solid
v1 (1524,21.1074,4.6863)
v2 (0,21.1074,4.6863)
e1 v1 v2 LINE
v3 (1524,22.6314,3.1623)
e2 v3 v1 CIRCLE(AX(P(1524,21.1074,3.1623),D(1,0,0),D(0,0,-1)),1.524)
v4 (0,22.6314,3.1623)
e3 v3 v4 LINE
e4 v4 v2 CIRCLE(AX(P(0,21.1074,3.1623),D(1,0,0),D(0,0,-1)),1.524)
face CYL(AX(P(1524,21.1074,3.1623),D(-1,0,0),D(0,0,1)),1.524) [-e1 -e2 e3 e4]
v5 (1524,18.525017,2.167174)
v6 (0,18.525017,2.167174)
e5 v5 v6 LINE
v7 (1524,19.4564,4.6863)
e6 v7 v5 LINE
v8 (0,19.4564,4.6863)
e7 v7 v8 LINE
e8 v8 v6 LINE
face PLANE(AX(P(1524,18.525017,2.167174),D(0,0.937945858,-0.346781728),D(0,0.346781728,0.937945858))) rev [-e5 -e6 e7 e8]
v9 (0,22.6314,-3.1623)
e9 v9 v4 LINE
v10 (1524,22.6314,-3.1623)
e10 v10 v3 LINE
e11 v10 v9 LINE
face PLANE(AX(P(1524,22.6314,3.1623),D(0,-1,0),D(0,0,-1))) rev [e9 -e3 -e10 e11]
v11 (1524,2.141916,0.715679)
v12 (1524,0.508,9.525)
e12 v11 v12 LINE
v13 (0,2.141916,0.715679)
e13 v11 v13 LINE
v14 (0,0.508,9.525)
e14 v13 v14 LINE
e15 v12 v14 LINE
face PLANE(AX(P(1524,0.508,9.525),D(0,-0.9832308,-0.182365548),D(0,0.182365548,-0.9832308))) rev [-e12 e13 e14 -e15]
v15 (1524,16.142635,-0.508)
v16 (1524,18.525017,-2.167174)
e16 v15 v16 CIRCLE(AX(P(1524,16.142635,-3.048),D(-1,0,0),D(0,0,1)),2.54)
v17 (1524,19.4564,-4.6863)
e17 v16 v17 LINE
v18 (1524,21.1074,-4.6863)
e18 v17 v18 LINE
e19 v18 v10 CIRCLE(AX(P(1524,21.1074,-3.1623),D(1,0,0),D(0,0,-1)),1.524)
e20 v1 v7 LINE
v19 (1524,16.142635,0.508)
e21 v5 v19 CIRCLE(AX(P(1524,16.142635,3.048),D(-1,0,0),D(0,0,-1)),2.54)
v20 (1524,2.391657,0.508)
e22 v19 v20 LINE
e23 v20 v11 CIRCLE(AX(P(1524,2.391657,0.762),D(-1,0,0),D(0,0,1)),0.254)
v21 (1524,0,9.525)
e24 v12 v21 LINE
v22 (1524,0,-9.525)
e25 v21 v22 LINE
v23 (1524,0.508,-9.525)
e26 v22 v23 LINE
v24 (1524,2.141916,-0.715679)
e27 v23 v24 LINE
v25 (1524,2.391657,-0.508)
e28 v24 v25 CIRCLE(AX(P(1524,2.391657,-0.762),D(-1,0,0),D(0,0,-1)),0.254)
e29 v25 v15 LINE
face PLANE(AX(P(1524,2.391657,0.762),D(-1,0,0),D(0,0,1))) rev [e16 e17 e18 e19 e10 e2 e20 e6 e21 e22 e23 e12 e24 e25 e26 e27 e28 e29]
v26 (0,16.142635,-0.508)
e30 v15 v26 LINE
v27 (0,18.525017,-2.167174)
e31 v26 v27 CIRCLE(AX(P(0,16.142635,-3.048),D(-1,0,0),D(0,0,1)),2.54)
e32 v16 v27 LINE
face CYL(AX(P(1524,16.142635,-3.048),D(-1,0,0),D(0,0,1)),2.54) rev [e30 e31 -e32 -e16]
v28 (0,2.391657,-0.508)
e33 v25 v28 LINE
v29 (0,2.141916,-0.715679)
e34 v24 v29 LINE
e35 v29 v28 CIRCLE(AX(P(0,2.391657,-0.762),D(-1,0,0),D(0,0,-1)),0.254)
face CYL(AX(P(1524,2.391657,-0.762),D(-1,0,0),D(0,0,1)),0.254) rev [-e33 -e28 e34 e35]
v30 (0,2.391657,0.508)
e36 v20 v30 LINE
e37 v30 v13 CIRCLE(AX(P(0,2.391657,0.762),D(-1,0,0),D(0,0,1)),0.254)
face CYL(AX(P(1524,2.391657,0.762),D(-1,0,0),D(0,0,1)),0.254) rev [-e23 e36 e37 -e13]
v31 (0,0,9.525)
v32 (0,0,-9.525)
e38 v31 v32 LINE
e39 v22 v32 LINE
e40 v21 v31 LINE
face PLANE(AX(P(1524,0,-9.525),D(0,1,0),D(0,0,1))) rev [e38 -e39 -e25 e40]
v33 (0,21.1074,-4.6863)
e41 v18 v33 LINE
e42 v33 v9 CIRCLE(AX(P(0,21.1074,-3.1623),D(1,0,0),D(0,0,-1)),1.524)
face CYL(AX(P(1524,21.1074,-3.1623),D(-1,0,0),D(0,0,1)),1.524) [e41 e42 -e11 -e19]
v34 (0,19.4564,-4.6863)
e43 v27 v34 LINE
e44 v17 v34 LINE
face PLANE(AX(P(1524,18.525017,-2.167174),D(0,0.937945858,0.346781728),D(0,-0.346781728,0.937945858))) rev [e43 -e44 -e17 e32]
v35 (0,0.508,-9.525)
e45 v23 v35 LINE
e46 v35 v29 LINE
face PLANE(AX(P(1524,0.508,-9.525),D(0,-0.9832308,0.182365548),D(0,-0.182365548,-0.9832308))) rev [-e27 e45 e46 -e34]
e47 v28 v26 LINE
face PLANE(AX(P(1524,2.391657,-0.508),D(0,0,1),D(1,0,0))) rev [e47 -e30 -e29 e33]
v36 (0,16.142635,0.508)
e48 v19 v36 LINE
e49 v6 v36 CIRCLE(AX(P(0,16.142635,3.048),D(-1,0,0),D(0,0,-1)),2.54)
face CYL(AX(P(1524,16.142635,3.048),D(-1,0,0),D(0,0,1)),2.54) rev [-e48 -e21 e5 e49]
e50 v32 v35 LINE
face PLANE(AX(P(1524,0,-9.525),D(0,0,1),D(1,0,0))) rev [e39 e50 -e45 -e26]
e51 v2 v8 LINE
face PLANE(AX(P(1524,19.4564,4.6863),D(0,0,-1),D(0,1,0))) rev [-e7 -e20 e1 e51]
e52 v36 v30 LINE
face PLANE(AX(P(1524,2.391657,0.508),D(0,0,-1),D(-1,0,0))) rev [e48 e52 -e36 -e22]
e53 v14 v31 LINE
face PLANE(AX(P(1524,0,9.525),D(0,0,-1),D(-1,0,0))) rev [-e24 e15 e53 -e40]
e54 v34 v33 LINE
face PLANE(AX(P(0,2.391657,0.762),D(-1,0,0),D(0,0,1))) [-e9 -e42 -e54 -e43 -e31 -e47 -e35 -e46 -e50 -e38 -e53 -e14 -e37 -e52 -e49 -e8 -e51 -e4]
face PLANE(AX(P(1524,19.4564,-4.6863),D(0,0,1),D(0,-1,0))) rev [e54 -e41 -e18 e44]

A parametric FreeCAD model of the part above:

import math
import FreeCAD as App
import Part
import Sketcher
from FreeCAD import Vector
Q = App.Units.Quantity

doc = App.newDocument("Part")
params = doc.addObject("Spreadsheet::Sheet", "Params")
for row, (alias, value) in enumerate([
    ("sketch1_radius", "0.1 in"),
    ("sketch1_radius2", "0.01 in"),
    ("sketch1_radius3", "0.06 in"),
    ("sketch1_width", "0.02 in"),
    ("sketch1_height", "0.75 in"),
    ("pad1_length", "60 in"),
], start=1):
    params.set(f"A{row}", alias)
    params.set(f"B{row}", "=" + value)
    params.setAlias(f"B{row}", alias)

body = doc.addObject("PartDesign::Body", "Body")

# Sketch on YZ plane
sketch1 = body.newObject("Sketcher::SketchObject", "Sketch")
sketch1.AttachmentSupport = (doc.getObject("YZ_Plane"), [""])
sketch1.MapMode = "FlatFace"
sketch1.addGeometry([
    Part.LineSegment(Vector(0, 9.53, 0), Vector(0, -9.53, 0)),  # 0
    Part.LineSegment(Vector(0, -9.53, 0), Vector(0.51, -9.53, 0)),  # 1
    Part.LineSegment(Vector(0.51, -9.53, 0), Vector(2.14, -0.72, 0)),  # 2
    Part.ArcOfCircle(Part.Circle(Vector(2.39, -0.76, 0), Vector(0, 0, 1), 0.25), math.radians(90), math.radians(169)),  # 3
    Part.LineSegment(Vector(2.39, -0.51, 0), Vector(16.14, -0.51, 0)),  # 4
    Part.ArcOfCircle(Part.Circle(Vector(16.14, -3.05, 0), Vector(0, 0, 1), 2.54), math.radians(20), math.radians(90)),  # 5
    Part.LineSegment(Vector(18.53, -2.17, 0), Vector(19.46, -4.69, 0)),  # 6
    Part.LineSegment(Vector(19.46, -4.69, 0), Vector(21.11, -4.69, 0)),  # 7
    Part.ArcOfCircle(Part.Circle(Vector(21.11, -3.16, 0), Vector(0, 0, 1), 1.52), math.radians(-90), math.radians(0)),  # 8
    Part.LineSegment(Vector(22.63, -3.16, 0), Vector(22.63, 3.16, 0)),  # 9
    Part.ArcOfCircle(Part.Circle(Vector(21.11, 3.16, 0), Vector(0, 0, 1), 1.52), math.radians(0), math.radians(90)),  # 10
    Part.LineSegment(Vector(21.11, 4.69, 0), Vector(19.46, 4.69, 0)),  # 11
    Part.LineSegment(Vector(19.46, 4.69, 0), Vector(18.53, 2.17, 0)),  # 12
    Part.ArcOfCircle(Part.Circle(Vector(16.14, 3.05, 0), Vector(0, 0, 1), 2.54), math.radians(-90), math.radians(-20)),  # 13
    Part.LineSegment(Vector(16.14, 0.51, 0), Vector(2.39, 0.51, 0)),  # 14
    Part.ArcOfCircle(Part.Circle(Vector(2.39, 0.76, 0), Vector(0, 0, 1), 0.25), math.radians(-169), math.radians(-90)),  # 15
    Part.LineSegment(Vector(2.14, 0.72, 0), Vector(0.51, 9.53, 0)),  # 16
    Part.LineSegment(Vector(0.51, 9.53, 0), Vector(0, 9.53, 0)),  # 17
], False)
sketch1.addConstraint([
    Sketcher.Constraint("Coincident", 0, 2, 1, 1),
    Sketcher.Constraint("Coincident", 1, 2, 2, 1),
    Sketcher.Constraint("Tangent", 2, 2, 3, 2),
    Sketcher.Constraint("Tangent", 3, 1, 4, 1),
    Sketcher.Constraint("Tangent", 4, 2, 5, 2),
    Sketcher.Constraint("Tangent", 5, 1, 6, 1),
    Sketcher.Constraint("Coincident", 6, 2, 7, 1),
    Sketcher.Constraint("Tangent", 7, 2, 8, 1),
    Sketcher.Constraint("Tangent", 8, 2, 9, 1),
    Sketcher.Constraint("Tangent", 9, 2, 10, 1),
    Sketcher.Constraint("Tangent", 10, 2, 11, 1),
    Sketcher.Constraint("Coincident", 11, 2, 12, 1),
    Sketcher.Constraint("Tangent", 12, 2, 13, 2),
    Sketcher.Constraint("Tangent", 13, 1, 14, 1),
    Sketcher.Constraint("Tangent", 14, 2, 15, 2),
    Sketcher.Constraint("Tangent", 15, 1, 16, 1),
    Sketcher.Constraint("Coincident", 16, 2, 17, 1),
    Sketcher.Constraint("Coincident", 17, 2, 0, 1),
    Sketcher.Constraint("Vertical", 0),
    Sketcher.Constraint("Horizontal", 1),
    Sketcher.Constraint("Horizontal", 4),
    Sketcher.Constraint("Horizontal", 7),
    Sketcher.Constraint("Vertical", 9),
    Sketcher.Constraint("Horizontal", 11),
    Sketcher.Constraint("Horizontal", 14),
    Sketcher.Constraint("Horizontal", 17),
    Sketcher.Constraint("Equal", 8, 10),
    Sketcher.Constraint("Equal", 5, 13),
    Sketcher.Constraint("Equal", 3, 15),
    Sketcher.Constraint("Symmetric", 0, 2, 17, 2, -1, 1),
    Sketcher.Constraint("Symmetric", 5, 3, 13, 3, -1),
    Sketcher.Constraint("Symmetric", 6, 2, 11, 2, -1),
    Sketcher.Constraint("Symmetric", 2, 2, 15, 1, -1),
    Sketcher.Constraint("Radius", 5, Q("0.1 in")),
    Sketcher.Constraint("Radius", 3, Q("0.01 in")),
    Sketcher.Constraint("Radius", 8, Q("0.06 in")),
    Sketcher.Constraint("DistanceX", 1, 1, 1, 2, Q("0.02 in")),
    Sketcher.Constraint("DistanceY", 0, 2, 0, 1, Q("0.75 in")),
    Sketcher.Constraint("DistanceX", 7, 1, 7, 2, Q("0.065 in")),
    Sketcher.Constraint("DistanceY", 9, 1, 9, 2, Q("0.249 in")),
    Sketcher.Constraint("DistanceY", 3, 3, -1, 1, Q("0.03 in")),
    Sketcher.Constraint("DistanceX", -1, 1, 8, 3, Q("0.831 in")),
    Sketcher.Constraint("Distance", 6, 2.68579),
    Sketcher.Constraint("DistanceX", 4, 1, 4, 2, 13.750978),
])
sketch1.setExpression("Constraints[33]", "Params.sketch1_radius")
sketch1.setExpression("Constraints[34]", "Params.sketch1_radius2")
sketch1.setExpression("Constraints[35]", "Params.sketch1_radius3")
sketch1.setExpression("Constraints[36]", "Params.sketch1_width")
sketch1.setExpression("Constraints[37]", "Params.sketch1_height")
pad1 = body.newObject("PartDesign::Pad", "Pad")
pad1.Profile = sketch1
pad1.setExpression("Length", "Params.pad1_length")

doc.recompute()
